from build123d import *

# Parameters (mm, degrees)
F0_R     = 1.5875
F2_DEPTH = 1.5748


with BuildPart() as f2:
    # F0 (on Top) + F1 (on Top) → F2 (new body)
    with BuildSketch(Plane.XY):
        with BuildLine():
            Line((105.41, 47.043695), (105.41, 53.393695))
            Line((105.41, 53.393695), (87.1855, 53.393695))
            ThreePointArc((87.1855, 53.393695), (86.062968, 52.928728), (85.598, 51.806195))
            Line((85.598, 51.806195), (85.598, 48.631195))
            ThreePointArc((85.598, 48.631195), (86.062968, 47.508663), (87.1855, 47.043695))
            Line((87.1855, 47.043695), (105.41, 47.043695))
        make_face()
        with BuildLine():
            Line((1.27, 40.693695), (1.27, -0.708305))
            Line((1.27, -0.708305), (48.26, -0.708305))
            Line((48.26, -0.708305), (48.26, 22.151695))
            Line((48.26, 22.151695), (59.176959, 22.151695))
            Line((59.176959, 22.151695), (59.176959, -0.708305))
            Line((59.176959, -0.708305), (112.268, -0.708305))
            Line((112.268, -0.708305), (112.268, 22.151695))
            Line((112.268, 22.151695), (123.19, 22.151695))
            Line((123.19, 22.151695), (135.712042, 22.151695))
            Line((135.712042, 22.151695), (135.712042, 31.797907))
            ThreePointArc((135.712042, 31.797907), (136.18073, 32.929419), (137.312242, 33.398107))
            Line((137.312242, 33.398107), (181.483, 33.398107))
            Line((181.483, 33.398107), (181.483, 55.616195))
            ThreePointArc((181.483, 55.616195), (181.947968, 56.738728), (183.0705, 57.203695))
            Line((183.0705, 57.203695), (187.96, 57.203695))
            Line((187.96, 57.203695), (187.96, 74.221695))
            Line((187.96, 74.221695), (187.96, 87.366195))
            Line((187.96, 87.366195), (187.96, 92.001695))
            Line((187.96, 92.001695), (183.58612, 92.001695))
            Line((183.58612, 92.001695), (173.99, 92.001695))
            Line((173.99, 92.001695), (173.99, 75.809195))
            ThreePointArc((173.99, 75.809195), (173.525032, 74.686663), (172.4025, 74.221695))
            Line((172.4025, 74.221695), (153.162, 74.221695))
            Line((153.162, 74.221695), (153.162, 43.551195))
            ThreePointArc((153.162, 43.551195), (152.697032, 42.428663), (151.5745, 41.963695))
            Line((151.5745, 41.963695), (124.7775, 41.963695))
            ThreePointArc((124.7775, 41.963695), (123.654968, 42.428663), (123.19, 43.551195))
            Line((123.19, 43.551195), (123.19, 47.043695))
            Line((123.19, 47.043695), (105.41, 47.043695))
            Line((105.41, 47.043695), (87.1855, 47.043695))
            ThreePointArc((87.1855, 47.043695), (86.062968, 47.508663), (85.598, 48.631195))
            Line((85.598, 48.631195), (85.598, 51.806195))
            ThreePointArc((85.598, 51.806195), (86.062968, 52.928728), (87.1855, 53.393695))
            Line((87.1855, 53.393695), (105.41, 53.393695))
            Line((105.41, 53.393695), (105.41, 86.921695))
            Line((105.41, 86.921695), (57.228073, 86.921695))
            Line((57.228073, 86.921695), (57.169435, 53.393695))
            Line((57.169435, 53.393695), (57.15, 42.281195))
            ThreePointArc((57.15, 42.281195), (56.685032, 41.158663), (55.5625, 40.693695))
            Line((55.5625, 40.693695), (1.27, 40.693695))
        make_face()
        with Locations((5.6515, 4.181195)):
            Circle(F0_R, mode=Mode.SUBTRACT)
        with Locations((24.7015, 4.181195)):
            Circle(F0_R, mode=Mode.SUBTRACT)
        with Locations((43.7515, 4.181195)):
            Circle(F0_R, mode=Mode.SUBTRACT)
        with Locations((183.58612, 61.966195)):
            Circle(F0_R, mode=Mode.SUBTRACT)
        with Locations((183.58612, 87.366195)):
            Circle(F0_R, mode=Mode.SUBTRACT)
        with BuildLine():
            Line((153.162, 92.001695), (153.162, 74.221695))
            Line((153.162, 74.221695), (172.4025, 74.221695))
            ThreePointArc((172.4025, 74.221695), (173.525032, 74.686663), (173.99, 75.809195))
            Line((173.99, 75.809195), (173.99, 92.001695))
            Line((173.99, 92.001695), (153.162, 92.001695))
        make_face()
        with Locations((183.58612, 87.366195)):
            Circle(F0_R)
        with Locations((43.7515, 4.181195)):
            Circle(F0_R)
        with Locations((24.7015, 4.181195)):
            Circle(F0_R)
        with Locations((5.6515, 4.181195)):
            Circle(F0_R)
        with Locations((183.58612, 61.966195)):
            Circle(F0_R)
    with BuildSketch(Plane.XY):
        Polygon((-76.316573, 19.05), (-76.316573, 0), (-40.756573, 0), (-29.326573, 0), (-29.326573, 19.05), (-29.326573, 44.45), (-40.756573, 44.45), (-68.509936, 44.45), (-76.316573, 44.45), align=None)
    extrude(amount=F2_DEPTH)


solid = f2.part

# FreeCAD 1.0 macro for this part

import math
import FreeCAD as App
import Part
import Sketcher
from FreeCAD import Vector
Q = App.Units.Quantity

doc = App.newDocument("Part")
params = doc.addObject("Spreadsheet::Sheet", "Params")
for row, (alias, value) in enumerate([
    ("sketch1_width", "0.7 in"),
    ("sketch1_height", "0.9 in"),
    ("sketch1_radius", "0.0625 in"),
    ("sketch1_radius2", "0.063 in"),
    ("sketch1_width2", "1.85 in"),
    ("pad1_length", "0.062 in"),
], start=1):
    params.set(f"A{row}", alias)
    params.set(f"B{row}", "=" + value)
    params.setAlias(f"B{row}", alias)

body = doc.addObject("PartDesign::Body", "Body")
body.AllowCompound = True

# Sketch on XY plane
sketch1 = body.newObject("Sketcher::SketchObject", "Sketch")
sketch1.AttachmentSupport = (doc.getObject("XY_Plane"), [""])
sketch1.MapMode = "FlatFace"
sketch1.addGeometry(Part.LineSegment(Vector(105.4, 47, 0), Vector(105.4, 86.9, 0)), False)
sketch1.addGeometry(Part.LineSegment(Vector(105.4, 86.9, 0), Vector(57.2, 86.9, 0)), False)
sketch1.addGeometry(Part.LineSegment(Vector(57.2, 86.9, 0), Vector(57.2, 53.4, 0)), False)
sketch1.addGeometry(Part.LineSegment(Vector(57.2, 53.4, 0), Vector(57.1, 42.3, 0)), False)
sketch1.addGeometry(Part.ArcOfCircle(Part.Circle(Vector(55.6, 42.3, 0), Vector(0, 0, 1), 1.6), math.radians(-90), math.radians(0)), False)
sketch1.addGeometry(Part.LineSegment(Vector(55.6, 40.7, 0), Vector(1.3, 40.7, 0)), False)
sketch1.addGeometry(Part.LineSegment(Vector(1.3, 40.7, 0), Vector(1.3, -0.7, 0)), False)
sketch1.addGeometry(Part.LineSegment(Vector(1.3, -0.7, 0), Vector(48.3, -0.7, 0)), False)
sketch1.addGeometry(Part.LineSegment(Vector(48.3, -0.7, 0), Vector(48.3, 22.2, 0)), False)
sketch1.addGeometry(Part.LineSegment(Vector(48.3, 22.2, 0), Vector(59.2, 22.2, 0)), False)
sketch1.addGeometry(Part.LineSegment(Vector(59.2, 22.2, 0), Vector(59.2, -0.7, 0)), False)
sketch1.addGeometry(Part.LineSegment(Vector(59.2, -0.7, 0), Vector(112.3, -0.7, 0)), False)
sketch1.addGeometry(Part.LineSegment(Vector(112.3, -0.7, 0), Vector(112.3, 22.2, 0)), False)
sketch1.addGeometry(Part.LineSegment(Vector(112.3, 22.2, 0), Vector(135.7, 22.2, 0)), False)
sketch1.addGeometry(Part.LineSegment(Vector(135.7, 22.2, 0), Vector(135.7, 31.8, 0)), False)
sketch1.addGeometry(Part.ArcOfCircle(Part.Circle(Vector(137.3, 31.8, 0), Vector(0, 0, 1), 1.6), math.radians(90), math.radians(180)), False)
sketch1.addGeometry(Part.LineSegment(Vector(137.3, 33.4, 0), Vector(181.5, 33.4, 0)), False)
sketch1.addGeometry(Part.LineSegment(Vector(181.5, 33.4, 0), Vector(181.5, 55.6, 0)), False)
sketch1.addGeometry(Part.ArcOfCircle(Part.Circle(Vector(183.1, 55.6, 0), Vector(0, 0, 1), 1.6), math.radians(90), math.radians(180)), False)
sketch1.addGeometry(Part.LineSegment(Vector(183.1, 57.2, 0), Vector(188, 57.2, 0)), False)
sketch1.addGeometry(Part.LineSegment(Vector(188, 57.2, 0), Vector(188, 92, 0)), False)
sketch1.addGeometry(Part.LineSegment(Vector(188, 92, 0), Vector(153.2, 92, 0)), False)
sketch1.addGeometry(Part.LineSegment(Vector(153.2, 92, 0), Vector(153.2, 43.6, 0)), False)
sketch1.addGeometry(Part.ArcOfCircle(Part.Circle(Vector(151.6, 43.6, 0), Vector(0, 0, 1), 1.6), math.radians(-90), math.radians(0)), False)
sketch1.addGeometry(Part.LineSegment(Vector(151.6, 42, 0), Vector(124.8, 42, 0)), False)
sketch1.addGeometry(Part.ArcOfCircle(Part.Circle(Vector(124.8, 43.6, 0), Vector(0, 0, 1), 1.6), math.radians(-180), math.radians(-90)), False)
sketch1.addGeometry(Part.LineSegment(Vector(123.2, 43.6, 0), Vector(123.2, 47, 0)), False)
sketch1.addGeometry(Part.LineSegment(Vector(123.2, 47, 0), Vector(105.4, 47, 0)), False)
sketch1.addGeometry(Part.LineSegment(Vector(-76.3, 0, 0), Vector(-29.3, 0, 0)), False)
sketch1.addGeometry(Part.LineSegment(Vector(-29.3, 0, 0), Vector(-29.3, 44.5, 0)), False)
sketch1.addGeometry(Part.LineSegment(Vector(-29.3, 44.5, 0), Vector(-76.3, 44.5, 0)), False)
sketch1.addGeometry(Part.LineSegment(Vector(-76.3, 44.5, 0), Vector(-76.3, 0, 0)), False)
sketch1.addConstraint(Sketcher.Constraint("Coincident", 0, 2, 1, 1))
sketch1.addConstraint(Sketcher.Constraint("Coincident", 1, 2, 2, 1))
sketch1.addConstraint(Sketcher.Constraint("Coincident", 2, 2, 3, 1))
sketch1.addConstraint(Sketcher.Constraint("Coincident", 3, 2, 4, 2))
sketch1.addConstraint(Sketcher.Constraint("Tangent", 4, 1, 5, 1))
sketch1.addConstraint(Sketcher.Constraint("Coincident", 5, 2, 6, 1))
sketch1.addConstraint(Sketcher.Constraint("Coincident", 6, 2, 7, 1))
sketch1.addConstraint(Sketcher.Constraint("Coincident", 7, 2, 8, 1))
sketch1.addConstraint(Sketcher.Constraint("Coincident", 8, 2, 9, 1))
sketch1.addConstraint(Sketcher.Constraint("Coincident", 9, 2, 10, 1))
sketch1.addConstraint(Sketcher.Constraint("Coincident", 10, 2, 11, 1))
sketch1.addConstraint(Sketcher.Constraint("Coincident", 11, 2, 12, 1))
sketch1.addConstraint(Sketcher.Constraint("Coincident", 12, 2, 13, 1))
sketch1.addConstraint(Sketcher.Constraint("Coincident", 13, 2, 14, 1))
sketch1.addConstraint(Sketcher.Constraint("Tangent", 14, 2, 15, 2))
sketch1.addConstraint(Sketcher.Constraint("Tangent", 15, 1, 16, 1))
sketch1.addConstraint(Sketcher.Constraint("Coincident", 16, 2, 17, 1))
sketch1.addConstraint(Sketcher.Constraint("Tangent", 17, 2, 18, 2))
sketch1.addConstraint(Sketcher.Constraint("Tangent", 18, 1, 19, 1))
sketch1.addConstraint(Sketcher.Constraint("Coincident", 19, 2, 20, 1))
sketch1.addConstraint(Sketcher.Constraint("Coincident", 20, 2, 21, 1))
sketch1.addConstraint(Sketcher.Constraint("Coincident", 21, 2, 22, 1))
sketch1.addConstraint(Sketcher.Constraint("Tangent", 22, 2, 23, 2))
sketch1.addConstraint(Sketcher.Constraint("Tangent", 23, 1, 24, 1))
sketch1.addConstraint(Sketcher.Constraint("Tangent", 24, 2, 25, 2))
sketch1.addConstraint(Sketcher.Constraint("Tangent", 25, 1, 26, 1))
sketch1.addConstraint(Sketcher.Constraint("Coincident", 26, 2, 27, 1))
sketch1.addConstraint(Sketcher.Constraint("Coincident", 27, 2, 0, 1))
sketch1.addConstraint(Sketcher.Constraint("Coincident", 28, 2, 29, 1))
sketch1.addConstraint(Sketcher.Constraint("Coincident", 29, 2, 30, 1))
sketch1.addConstraint(Sketcher.Constraint("Coincident", 30, 2, 31, 1))
sketch1.addConstraint(Sketcher.Constraint("Coincident", 31, 2, 28, 1))
sketch1.addConstraint(Sketcher.Constraint("Vertical", 0))
sketch1.addConstraint(Sketcher.Constraint("Horizontal", 1))
sketch1.addConstraint(Sketcher.Constraint("Horizontal", 5))
sketch1.addConstraint(Sketcher.Constraint("Vertical", 6))
sketch1.addConstraint(Sketcher.Constraint("Horizontal", 7))
sketch1.addConstraint(Sketcher.Constraint("Vertical", 8))
sketch1.addConstraint(Sketcher.Constraint("Horizontal", 9))
sketch1.addConstraint(Sketcher.Constraint("Vertical", 10))
sketch1.addConstraint(Sketcher.Constraint("Horizontal", 11))
sketch1.addConstraint(Sketcher.Constraint("Vertical", 12))
sketch1.addConstraint(Sketcher.Constraint("Horizontal", 13))
sketch1.addConstraint(Sketcher.Constraint("Vertical", 14))
sketch1.addConstraint(Sketcher.Constraint("Horizontal", 16))
sketch1.addConstraint(Sketcher.Constraint("Vertical", 17))
sketch1.addConstraint(Sketcher.Constraint("Horizontal", 19))
sketch1.addConstraint(Sketcher.Constraint("Vertical", 20))
sketch1.addConstraint(Sketcher.Constraint("Horizontal", 21))
sketch1.addConstraint(Sketcher.Constraint("Vertical", 22))
sketch1.addConstraint(Sketcher.Constraint("Horizontal", 24))
sketch1.addConstraint(Sketcher.Constraint("Vertical", 26))
sketch1.addConstraint(Sketcher.Constraint("Horizontal", 27))
sketch1.addConstraint(Sketcher.Constraint("Horizontal", 28))
sketch1.addConstraint(Sketcher.Constraint("Vertical", 29))
sketch1.addConstraint(Sketcher.Constraint("Horizontal", 30))
sketch1.addConstraint(Sketcher.Constraint("Vertical", 31))
sketch1.addConstraint(Sketcher.Constraint("Equal", 4, 18))
sketch1.addConstraint(Sketcher.Constraint("Equal", 18, 23))
sketch1.addConstraint(Sketcher.Constraint("Equal", 23, 25))
sketch1.addConstraint(Sketcher.Constraint("PointOnObject", 28, 2, -1))
sketch1.addConstraint(Sketcher.Constraint("Parallel", 2, 3))
sketch1.addConstraint(Sketcher.Constraint("Horizontal", 4, 3, 3, 2))
sketch1.addConstraint(Sketcher.Constraint("Horizontal", 7, 2, 10, 2))
sketch1.addConstraint(Sketcher.Constraint("Horizontal", 9, 2, 12, 2))
sketch1.addConstraint(Sketcher.Constraint("Equal", 7, 28))
sketch1.addConstraint(Sketcher.Constraint("Equal", 21, 20))
sketch1.addConstraint(Sketcher.Constraint("DistanceX", 27, 2, 27, 1, Q("0.7 in")))
sketch1.addConstraint(Sketcher.Constraint("DistanceY", 8, 1, 8, 2, Q("0.9 in")))
sketch1.addConstraint(Sketcher.Constraint("Radius", 4, Q("0.0625 in")))
sketch1.addConstraint(Sketcher.Constraint("Radius", 15, Q("0.063 in")))
sketch1.addConstraint(Sketcher.Constraint("DistanceX", 7, 1, 7, 2, Q("1.85 in")))
sketch1.addConstraint(Sketcher.Constraint("DistanceX", 21, 2, 21, 1, Q("1.37 in")))
sketch1.addConstraint(Sketcher.Constraint("DistanceY", 0, 1, 0, 2, Q("1.57 in")))
sketch1.addConstraint(Sketcher.Constraint("DistanceY", 6, 2, 6, 1, Q("1.63 in")))
sketch1.addConstraint(Sketcher.Constraint("DistanceY", 29, 1, 29, 2, Q("1.75 in")))
sketch1.addConstraint(Sketcher.Constraint("DistanceX", -1, 1, 7, 2, Q("1.9 in")))
sketch1.addConstraint(Sketcher.Constraint("DistanceX", -1, 1, 19, 2, Q("7.4 in")))
sketch1.addConstraint(Sketcher.Constraint("DistanceX", 3, 2, 0, 2, Q("1.9 in")))
sketch1.addConstraint(Sketcher.Constraint("DistanceY", 4, 1, 2, 2, Q("0.5 in")))
sketch1.addConstraint(Sketcher.Constraint("DistanceX", 5, 2, 3, 2, Q("2.2 in")))
sketch1.addConstraint(Sketcher.Constraint("DistanceY", 0, 2, 21, 2, Q("0.2 in")))
sketch1.addConstraint(Sketcher.Constraint("DistanceY", 24, 2, 26, 2, Q("0.2 in")))
sketch1.addConstraint(Sketcher.Constraint("DistanceX", -1, 1, 11, 2, Q("4.42 in")))
sketch1.addConstraint(Sketcher.Constraint("DistanceX", 4, 3, 18, 3, Q("5.0199999 in")))
sketch1.addConstraint(Sketcher.Constraint("DistanceY", 4, 3, 23, 3, Q("0.05 in")))
sketch1.addConstraint(Sketcher.Constraint("DistanceX", 9, 1, 9, 2, 10.916959))
sketch1.addConstraint(Sketcher.Constraint("DistanceX", 13, 1, 13, 2, 23.444042))
sketch1.addConstraint(Sketcher.Constraint("DistanceY", 14, 1, 14, 2, 9.646212))
sketch1.addConstraint(Sketcher.Constraint("DistanceX", 1, 2, 1, 1, 48.181927))
sketch1.addConstraint(Sketcher.Constraint("DistanceX", 28, 2, 10, 2, 88.503532))
sketch1.addConstraint(Sketcher.Constraint("DistanceY", -1, 1, 4, 3, 42.281195))
sketch1.setExpression("Constraints[67]", "Params.sketch1_width")
sketch1.setExpression("Constraints[68]", "Params.sketch1_height")
sketch1.setExpression("Constraints[69]", "Params.sketch1_radius")
sketch1.setExpression("Constraints[70]", "Params.sketch1_radius2")
sketch1.setExpression("Constraints[71]", "Params.sketch1_width2")
pad1 = body.newObject("PartDesign::Pad", "Pad")
pad1.Profile = sketch1
pad1.setExpression("Length", "Params.pad1_length")

doc.recompute()
